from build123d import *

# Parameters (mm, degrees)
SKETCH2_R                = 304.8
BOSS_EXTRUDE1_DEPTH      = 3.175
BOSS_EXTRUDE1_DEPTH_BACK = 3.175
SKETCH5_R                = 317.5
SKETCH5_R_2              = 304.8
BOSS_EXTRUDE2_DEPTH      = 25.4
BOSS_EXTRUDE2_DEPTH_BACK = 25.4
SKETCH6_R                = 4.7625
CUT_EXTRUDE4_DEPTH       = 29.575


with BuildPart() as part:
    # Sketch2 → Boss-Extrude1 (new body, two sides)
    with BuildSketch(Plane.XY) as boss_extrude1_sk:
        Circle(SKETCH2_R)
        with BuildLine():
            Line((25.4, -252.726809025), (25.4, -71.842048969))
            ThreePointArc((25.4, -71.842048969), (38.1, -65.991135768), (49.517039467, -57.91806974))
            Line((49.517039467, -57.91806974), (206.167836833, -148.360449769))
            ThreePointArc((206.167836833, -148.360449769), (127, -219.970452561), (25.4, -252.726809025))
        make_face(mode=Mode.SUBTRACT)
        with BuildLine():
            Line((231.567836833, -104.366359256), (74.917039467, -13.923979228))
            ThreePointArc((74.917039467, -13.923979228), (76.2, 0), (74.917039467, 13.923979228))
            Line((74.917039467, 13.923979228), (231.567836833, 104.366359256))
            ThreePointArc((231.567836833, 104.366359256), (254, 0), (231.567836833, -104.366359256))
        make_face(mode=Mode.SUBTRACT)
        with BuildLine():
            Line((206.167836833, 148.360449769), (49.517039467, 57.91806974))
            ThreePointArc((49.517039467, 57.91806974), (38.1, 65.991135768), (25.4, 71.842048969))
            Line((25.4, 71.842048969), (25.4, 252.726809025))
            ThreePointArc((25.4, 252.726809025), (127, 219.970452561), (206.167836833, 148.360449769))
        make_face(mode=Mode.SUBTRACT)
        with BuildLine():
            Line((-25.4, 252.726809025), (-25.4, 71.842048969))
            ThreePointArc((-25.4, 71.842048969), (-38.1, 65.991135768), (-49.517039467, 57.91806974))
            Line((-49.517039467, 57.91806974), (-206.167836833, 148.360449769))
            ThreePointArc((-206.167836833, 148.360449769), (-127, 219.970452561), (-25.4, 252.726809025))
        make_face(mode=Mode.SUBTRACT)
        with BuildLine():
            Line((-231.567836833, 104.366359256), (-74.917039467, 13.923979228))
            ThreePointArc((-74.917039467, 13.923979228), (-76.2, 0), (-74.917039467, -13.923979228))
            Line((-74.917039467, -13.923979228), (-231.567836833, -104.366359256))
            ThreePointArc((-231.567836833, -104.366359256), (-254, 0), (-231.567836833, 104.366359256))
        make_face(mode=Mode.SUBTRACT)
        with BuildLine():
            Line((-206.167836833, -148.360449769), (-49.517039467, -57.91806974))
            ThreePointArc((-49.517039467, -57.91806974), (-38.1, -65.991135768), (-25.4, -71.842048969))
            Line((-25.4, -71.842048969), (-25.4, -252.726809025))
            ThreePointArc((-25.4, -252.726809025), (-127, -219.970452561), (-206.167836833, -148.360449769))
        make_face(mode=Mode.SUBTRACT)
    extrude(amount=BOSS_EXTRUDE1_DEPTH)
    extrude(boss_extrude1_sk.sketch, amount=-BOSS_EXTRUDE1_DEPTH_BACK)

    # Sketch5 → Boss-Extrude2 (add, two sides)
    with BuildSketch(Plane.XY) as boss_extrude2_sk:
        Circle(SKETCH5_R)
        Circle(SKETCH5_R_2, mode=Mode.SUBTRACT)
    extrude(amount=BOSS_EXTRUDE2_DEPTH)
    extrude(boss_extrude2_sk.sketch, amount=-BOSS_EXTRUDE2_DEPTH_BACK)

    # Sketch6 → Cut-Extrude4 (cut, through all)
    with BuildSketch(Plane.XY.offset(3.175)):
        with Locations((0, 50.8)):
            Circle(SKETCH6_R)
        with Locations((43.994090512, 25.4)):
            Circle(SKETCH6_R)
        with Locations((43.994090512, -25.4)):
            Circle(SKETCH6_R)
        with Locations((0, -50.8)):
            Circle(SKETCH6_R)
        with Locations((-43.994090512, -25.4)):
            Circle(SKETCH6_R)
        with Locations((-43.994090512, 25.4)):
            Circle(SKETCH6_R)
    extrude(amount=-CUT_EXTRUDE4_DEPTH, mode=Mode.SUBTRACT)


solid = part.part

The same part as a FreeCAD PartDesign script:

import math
import FreeCAD as App
import Part
import Sketcher

V = App.Vector
Q = App.Units.Quantity

doc = App.newDocument("Part")
body = doc.addObject("PartDesign::Body", "Body")

sketch1 = body.newObject("Sketcher::SketchObject", "Sketch")
sketch1.AttachmentSupport = (doc.getObject("XY_Plane"), [""])
sketch1.MapMode = "FlatFace"
sketch1.addGeometry([
    Part.Circle(V(0, 0, 0), V(0, 0, 1), 305),
    Part.ArcOfCircle(Part.Circle(V(0, 0, 0), V(0, 0, 1), 254), math.radians(-144), math.radians(-96)),
    Part.LineSegment(V(-206, -148, 0), V(-50, -58, 0)),
    Part.ArcOfCircle(Part.Circle(V(0, 0, 0), V(0, 0, 1), 76), math.radians(-131), math.radians(-109)),
    Part.LineSegment(V(-25, -72, 0), V(-25, -253, 0)),
    Part.ArcOfCircle(Part.Circle(V(0, 0, 0), V(0, 0, 1), 254), math.radians(-84), math.radians(-36)),
    Part.LineSegment(V(25, -253, 0), V(25, -72, 0)),
    Part.ArcOfCircle(Part.Circle(V(0, 0, 0), V(0, 0, 1), 76), math.radians(-71), math.radians(-49)),
    Part.LineSegment(V(50, -58, 0), V(206, -148, 0)),
    Part.ArcOfCircle(Part.Circle(V(0, 0, 0), V(0, 0, 1), 254), math.radians(156), math.radians(204)),
    Part.LineSegment(V(-232, 104, 0), V(-75, 14, 0)),
    Part.ArcOfCircle(Part.Circle(V(0, 0, 0), V(0, 0, 1), 76), math.radians(169), math.radians(191)),
    Part.LineSegment(V(-75, -14, 0), V(-232, -104, 0)),
    Part.ArcOfCircle(Part.Circle(V(0, 0, 0), V(0, 0, 1), 254), math.radians(96), math.radians(144)),
    Part.LineSegment(V(-25, 253, 0), V(-25, 72, 0)),
    Part.ArcOfCircle(Part.Circle(V(0, 0, 0), V(0, 0, 1), 76), math.radians(109), math.radians(131)),
    Part.LineSegment(V(-50, 58, 0), V(-206, 148, 0)),
    Part.ArcOfCircle(Part.Circle(V(0, 0, 0), V(0, 0, 1), 254), math.radians(-24), math.radians(24)),
    Part.LineSegment(V(232, -104, 0), V(75, -14, 0)),
    Part.ArcOfCircle(Part.Circle(V(0, 0, 0), V(0, 0, 1), 76), math.radians(-11), math.radians(11)),
    Part.LineSegment(V(75, 14, 0), V(232, 104, 0)),
    Part.ArcOfCircle(Part.Circle(V(0, 0, 0), V(0, 0, 1), 254), math.radians(36), math.radians(84)),
    Part.LineSegment(V(206, 148, 0), V(50, 58, 0)),
    Part.ArcOfCircle(Part.Circle(V(0, 0, 0), V(0, 0, 1), 76), math.radians(49), math.radians(71)),
    Part.LineSegment(V(25, 72, 0), V(25, 253, 0)),
], False)
sketch1.addConstraint([
    Sketcher.Constraint("Coincident", 1, 1, 2, 1),
    Sketcher.Constraint("Coincident", 2, 2, 3, 1),
    Sketcher.Constraint("Coincident", 3, 2, 4, 1),
    Sketcher.Constraint("Coincident", 4, 2, 1, 2),
    Sketcher.Constraint("Coincident", 5, 1, 6, 1),
    Sketcher.Constraint("Coincident", 6, 2, 7, 1),
    Sketcher.Constraint("Coincident", 7, 2, 8, 1),
    Sketcher.Constraint("Coincident", 8, 2, 5, 2),
    Sketcher.Constraint("Coincident", 9, 1, 10, 1),
    Sketcher.Constraint("Coincident", 10, 2, 11, 1),
    Sketcher.Constraint("Coincident", 11, 2, 12, 1),
    Sketcher.Constraint("Coincident", 12, 2, 9, 2),
    Sketcher.Constraint("Coincident", 13, 1, 14, 1),
    Sketcher.Constraint("Coincident", 14, 2, 15, 1),
    Sketcher.Constraint("Coincident", 15, 2, 16, 1),
    Sketcher.Constraint("Coincident", 16, 2, 13, 2),
    Sketcher.Constraint("Coincident", 17, 1, 18, 1),
    Sketcher.Constraint("Coincident", 18, 2, 19, 1),
    Sketcher.Constraint("Coincident", 19, 2, 20, 1),
    Sketcher.Constraint("Coincident", 20, 2, 17, 2),
    Sketcher.Constraint("Coincident", 21, 1, 22, 1),
    Sketcher.Constraint("Coincident", 22, 2, 23, 1),
    Sketcher.Constraint("Coincident", 23, 2, 24, 1),
    Sketcher.Constraint("Coincident", 24, 2, 21, 2),
    Sketcher.Constraint("Vertical", 4),
    Sketcher.Constraint("Vertical", 6),
    Sketcher.Constraint("Vertical", 14),
    Sketcher.Constraint("Vertical", 24),
    Sketcher.Constraint("Coincident", 0, 3, -1, 1),
    Sketcher.Constraint("Coincident", 1, 3, -1, 1),
    Sketcher.Constraint("Coincident", 3, 3, -1, 1),
    Sketcher.Constraint("Coincident", 5, 3, -1, 1),
    Sketcher.Constraint("Coincident", 7, 3, -1, 1),
    Sketcher.Constraint("Coincident", 9, 3, -1, 1),
    Sketcher.Constraint("Coincident", 11, 3, -1, 1),
    Sketcher.Constraint("Coincident", 13, 3, -1, 1),
    Sketcher.Constraint("Coincident", 15, 3, -1, 1),
    Sketcher.Constraint("Coincident", 17, 3, -1, 1),
    Sketcher.Constraint("Coincident", 19, 3, -1, 1),
    Sketcher.Constraint("Coincident", 21, 3, -1, 1),
    Sketcher.Constraint("Coincident", 23, 3, -1, 1),
    Sketcher.Constraint("Equal", 1, 5),
    Sketcher.Constraint("Equal", 3, 7),
    Sketcher.Constraint("Equal", 5, 9),
    Sketcher.Constraint("Equal", 7, 11),
    Sketcher.Constraint("Equal", 9, 13),
    Sketcher.Constraint("Equal", 11, 15),
    Sketcher.Constraint("Equal", 13, 17),
    Sketcher.Constraint("Equal", 15, 19),
    Sketcher.Constraint("Equal", 17, 21),
    Sketcher.Constraint("Equal", 19, 23),
    Sketcher.Constraint("Parallel", 8, 10),
    Sketcher.Constraint("Parallel", 2, 12),
    Sketcher.Constraint("Parallel", 10, 16),
    Sketcher.Constraint("Parallel", 16, 18),
    Sketcher.Constraint("Parallel", 12, 20),
    Sketcher.Constraint("Parallel", 20, 22),
    Sketcher.Constraint("Horizontal", 4, 2, 5, 1),
    Sketcher.Constraint("Horizontal", 2, 2, 7, 2),
    Sketcher.Constraint("Horizontal", 1, 1, 8, 2),
    Sketcher.Constraint("Horizontal", 12, 2, 17, 1),
    Sketcher.Constraint("Horizontal", 10, 2, 19, 2),
    Sketcher.Constraint("Horizontal", 16, 2, 21, 1),
    Sketcher.Constraint("Horizontal", 14, 2, 23, 2),
    Sketcher.Constraint("Vertical", 10, 2, 11, 2),
    Sketcher.Constraint("Vertical", 4, 2, 13, 1),
    Sketcher.Constraint("Vertical", 2, 2, 15, 2),
    Sketcher.Constraint("Equal", 8, 10),
    Sketcher.Constraint("Diameter", 0, Q("24 in")),
    Sketcher.Constraint("Radius", 1, Q("10 in")),
    Sketcher.Constraint("Radius", 3, Q("3 in")),
    Sketcher.Constraint("DistanceX", 3, 2, -1, 1, Q("1 in")),
    Sketcher.Constraint("Angle", 2, Q("30 deg")),
    Sketcher.Constraint("DistanceX", 11, 2, 2, 2, Q("1 in")),
])
pad1 = body.newObject("PartDesign::Pad", "Pad")
pad1.Profile = sketch1
pad1.Type = "TwoLengths"
pad1.Length = Q("0.125 in")
pad1.Length2 = Q("0.125 in")

sketch2 = body.newObject("Sketcher::SketchObject", "Sketch001")
sketch2.AttachmentSupport = (doc.getObject("XY_Plane"), [""])
sketch2.MapMode = "FlatFace"
sketch2.addGeometry([
    Part.Circle(V(0, 0, 0), V(0, 0, 1), 318),
    Part.Circle(V(0, 0, 0), V(0, 0, 1), 305),
], False)
sketch2.addConstraint([
    Sketcher.Constraint("Coincident", 0, 3, -1, 1),
    Sketcher.Constraint("Coincident", 1, 3, -1, 1),
    Sketcher.Constraint("Diameter", 0, Q("25 in")),
    Sketcher.Constraint("Diameter", 1, Q("24 in")),
])
pad2 = body.newObject("PartDesign::Pad", "Pad001")
pad2.Profile = sketch2
pad2.Type = "TwoLengths"
pad2.Length = Q("1 in")
pad2.Length2 = Q("1 in")

sketch3 = body.newObject("Sketcher::SketchObject", "Sketch002")
sketch3.AttachmentSupport = (doc.getObject("XY_Plane"), [""])
sketch3.MapMode = "FlatFace"
sketch3.AttachmentOffset = App.Placement(V(0, 0, 0.125 * 25.4), App.Rotation())
sketch3.addGeometry([
    Part.Circle(V(0, 50.8, 0), V(0, 0, 1), 4.8),
    Part.Circle(V(44, 25.4, 0), V(0, 0, 1), 4.8),
    Part.Circle(V(44, -25.4, 0), V(0, 0, 1), 4.8),
    Part.Circle(V(0, -50.8, 0), V(0, 0, 1), 4.8),
    Part.Circle(V(-44, -25.4, 0), V(0, 0, 1), 4.8),
    Part.Circle(V(-44, 25.4, 0), V(0, 0, 1), 4.8),
], False)
sketch3.addConstraint([
    Sketcher.Constraint("Equal", 0, 1),
    Sketcher.Constraint("Equal", 1, 2),
    Sketcher.Constraint("Equal", 2, 3),
    Sketcher.Constraint("Equal", 3, 4),
    Sketcher.Constraint("Equal", 4, 5),
    Sketcher.Constraint("Symmetric", 0, 3, 3, 3, -1, 1),
    Sketcher.Constraint("Symmetric", 1, 3, 4, 3, -1, 1),
    Sketcher.Constraint("Symmetric", 2, 3, 5, 3, -1, 1),
    Sketcher.Constraint("Symmetric", 2, 3, 4, 3, -2),
    Sketcher.Constraint("PointOnObject", 0, 3, -2),
    Sketcher.Constraint("Diameter", 0, Q("0.375 in")),
    Sketcher.Constraint("DistanceY", -1, 1, 0, 3, Q("2 in")),
    Sketcher.Constraint("DistanceY", -1, 1, 1, 3, Q("1 in")),
    Sketcher.Constraint("DistanceX", -1, 1, 1, 3, Q("43.994091 mm")),
])
pocket1 = body.newObject("PartDesign::Pocket", "Pocket")
pocket1.Profile = sketch3
pocket1.Type = "ThroughAll"

doc.recompute()
